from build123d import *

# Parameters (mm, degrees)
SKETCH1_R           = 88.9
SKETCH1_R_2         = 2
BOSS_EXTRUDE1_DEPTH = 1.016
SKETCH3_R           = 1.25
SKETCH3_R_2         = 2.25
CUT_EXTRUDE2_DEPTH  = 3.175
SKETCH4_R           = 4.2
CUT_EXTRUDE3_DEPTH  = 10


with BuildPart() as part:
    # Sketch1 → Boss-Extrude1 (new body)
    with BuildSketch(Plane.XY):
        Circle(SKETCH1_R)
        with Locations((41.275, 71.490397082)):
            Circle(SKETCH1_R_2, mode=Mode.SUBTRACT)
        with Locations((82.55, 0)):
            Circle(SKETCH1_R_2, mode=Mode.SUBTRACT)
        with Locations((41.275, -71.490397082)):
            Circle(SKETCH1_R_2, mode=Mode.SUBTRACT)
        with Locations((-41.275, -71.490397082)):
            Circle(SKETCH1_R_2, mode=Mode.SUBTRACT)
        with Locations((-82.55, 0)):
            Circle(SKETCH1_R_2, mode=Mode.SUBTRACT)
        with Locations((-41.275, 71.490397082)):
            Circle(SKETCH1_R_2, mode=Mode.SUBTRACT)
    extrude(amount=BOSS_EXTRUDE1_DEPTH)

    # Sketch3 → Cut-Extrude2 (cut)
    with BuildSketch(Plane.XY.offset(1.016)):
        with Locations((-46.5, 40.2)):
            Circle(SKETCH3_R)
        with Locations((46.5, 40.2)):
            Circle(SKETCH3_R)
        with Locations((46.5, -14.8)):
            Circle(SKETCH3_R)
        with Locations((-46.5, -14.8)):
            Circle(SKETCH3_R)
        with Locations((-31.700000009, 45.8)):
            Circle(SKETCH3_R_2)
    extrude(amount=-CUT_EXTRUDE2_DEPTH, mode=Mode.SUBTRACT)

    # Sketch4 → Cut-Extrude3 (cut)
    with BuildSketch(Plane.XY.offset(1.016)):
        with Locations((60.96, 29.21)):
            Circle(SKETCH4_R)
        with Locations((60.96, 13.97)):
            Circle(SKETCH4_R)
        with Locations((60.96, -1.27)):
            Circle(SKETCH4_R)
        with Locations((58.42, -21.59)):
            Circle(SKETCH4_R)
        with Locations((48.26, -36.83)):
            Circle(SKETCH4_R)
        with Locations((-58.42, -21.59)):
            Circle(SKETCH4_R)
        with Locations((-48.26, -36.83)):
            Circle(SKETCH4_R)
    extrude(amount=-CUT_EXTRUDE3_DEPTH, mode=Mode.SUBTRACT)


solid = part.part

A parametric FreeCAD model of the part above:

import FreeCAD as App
import Part
import Sketcher
Q = App.Units.Quantity

doc = App.newDocument("Part")
body = doc.addObject("PartDesign::Body", "Body")

# Sketch on XY plane
sketch1 = body.newObject("Sketcher::SketchObject", "Sketch")
sketch1.AttachmentSupport = (doc.getObject("XY_Plane"), [""])
sketch1.MapMode = "FlatFace"
sketch1.addGeometry([
    Part.Circle(App.Vector(0, 0, 0), App.Vector(0, 0, 1), 88.9),  # 0
    Part.Circle(App.Vector(-41.275, -71.490397, 0), App.Vector(0, 0, 1), 2),  # 1
    Part.Circle(App.Vector(41.275, -71.490397, 0), App.Vector(0, 0, 1), 2),  # 2
    Part.Circle(App.Vector(-82.55, 0, 0), App.Vector(0, 0, 1), 2),  # 3
    Part.Circle(App.Vector(-41.275, 71.490397, 0), App.Vector(0, 0, 1), 2),  # 4
    Part.Circle(App.Vector(82.55, 0, 0), App.Vector(0, 0, 1), 2),  # 5
    Part.Circle(App.Vector(41.275, 71.490397, 0), App.Vector(0, 0, 1), 2),  # 6
], False)
sketch1.addConstraint([
    Sketcher.Constraint("Coincident", 0, 3, -1, 1),
    Sketcher.Constraint("Equal", 1, 2),
    Sketcher.Constraint("Equal", 2, 3),
    Sketcher.Constraint("Equal", 3, 4),
    Sketcher.Constraint("Equal", 4, 5),
    Sketcher.Constraint("Equal", 5, 6),
    Sketcher.Constraint("Symmetric", 2, 3, 4, 3, -1, 1),
    Sketcher.Constraint("Symmetric", 3, 3, 5, 3, -1, 1),
    Sketcher.Constraint("Symmetric", 1, 3, 6, 3, -1, 1),
    Sketcher.Constraint("Symmetric", 1, 3, 2, 3, -2),
    Sketcher.Constraint("PointOnObject", 3, 3, -1),
    Sketcher.Constraint("Diameter", 1, Q("4 mm")),
    Sketcher.Constraint("Diameter", 0, Q("177.8 mm")),
    Sketcher.Constraint("DistanceX", 3, 3, 5, 3, Q("165.1 mm")),
    Sketcher.Constraint("DistanceX", 1, 3, 2, 3, Q("82.55 mm")),
    Sketcher.Constraint("DistanceY", 1, 3, -1, 1, Q("71.490397 mm")),
])
pad1 = body.newObject("PartDesign::Pad", "Pad")
pad1.Profile = sketch1
pad1.Length = 1.016

# Sketch on XY plane
sketch2 = body.newObject("Sketcher::SketchObject", "Sketch001")
sketch2.AttachmentSupport = (doc.getObject("XY_Plane"), [""])
sketch2.MapMode = "FlatFace"
sketch2.AttachmentOffset = App.Placement(App.Vector(0, 0, 1.016), App.Rotation())
sketch2.addGeometry([
    Part.Circle(App.Vector(-46.5, 40.2, 0), App.Vector(0, 0, 1), 1.25),  # 0
    Part.Circle(App.Vector(46.5, 40.2, 0), App.Vector(0, 0, 1), 1.25),  # 1
    Part.Circle(App.Vector(46.5, -14.8, 0), App.Vector(0, 0, 1), 1.25),  # 2
    Part.Circle(App.Vector(-46.5, -14.8, 0), App.Vector(0, 0, 1), 1.25),  # 3
    Part.Circle(App.Vector(-31.7, 45.8, 0), App.Vector(0, 0, 1), 2.25),  # 4
], False)
sketch2.addConstraint([
    Sketcher.Constraint("Equal", 0, 1),
    Sketcher.Constraint("Equal", 1, 2),
    Sketcher.Constraint("Equal", 2, 3),
    Sketcher.Constraint("Symmetric", 0, 3, 1, 3, -2),
    Sketcher.Constraint("Symmetric", 2, 3, 3, 3, -2),
    Sketcher.Constraint("Vertical", 1, 3, 2, 3),
    Sketcher.Constraint("Diameter", 0, Q("2.5 mm")),
    Sketcher.Constraint("Diameter", 4, Q("4.5 mm")),
    Sketcher.Constraint("DistanceX", 0, 3, 1, 3, Q("93 mm")),
    Sketcher.Constraint("DistanceY", 2, 3, 1, 3, Q("55 mm")),
    Sketcher.Constraint("DistanceY", -1, 1, 0, 3, Q("40.2 mm")),
    Sketcher.Constraint("DistanceX", 4, 3, -1, 1, Q("31.7 mm")),
    Sketcher.Constraint("DistanceY", -1, 1, 4, 3, Q("45.8 mm")),
])
pocket1 = body.newObject("PartDesign::Pocket", "Pocket")
pocket1.Profile = sketch2
pocket1.Length = 3.175

# Sketch on XY plane
sketch3 = body.newObject("Sketcher::SketchObject", "Sketch002")
sketch3.AttachmentSupport = (doc.getObject("XY_Plane"), [""])
sketch3.MapMode = "FlatFace"
sketch3.AttachmentOffset = App.Placement(App.Vector(0, 0, 1.016), App.Rotation())
sketch3.addGeometry([
    Part.Circle(App.Vector(60.96, 29.21, 0), App.Vector(0, 0, 1), 4.2),  # 0
    Part.Circle(App.Vector(60.96, 13.97, 0), App.Vector(0, 0, 1), 4.2),  # 1
    Part.Circle(App.Vector(60.96, -1.27, 0), App.Vector(0, 0, 1), 4.2),  # 2
    Part.Circle(App.Vector(58.42, -21.59, 0), App.Vector(0, 0, 1), 4.2),  # 3
    Part.Circle(App.Vector(48.26, -36.83, 0), App.Vector(0, 0, 1), 4.2),  # 4
    Part.Circle(App.Vector(-58.42, -21.59, 0), App.Vector(0, 0, 1), 4.2),  # 5
    Part.Circle(App.Vector(-48.26, -36.83, 0), App.Vector(0, 0, 1), 4.2),  # 6
], False)
sketch3.addConstraint([
    Sketcher.Constraint("Equal", 0, 1),
    Sketcher.Constraint("Equal", 1, 2),
    Sketcher.Constraint("Equal", 2, 3),
    Sketcher.Constraint("Equal", 3, 4),
    Sketcher.Constraint("Equal", 4, 5),
    Sketcher.Constraint("Equal", 5, 6),
    Sketcher.Constraint("Symmetric", 3, 3, 5, 3, -2),
    Sketcher.Constraint("Symmetric", 4, 3, 6, 3, -2),
    Sketcher.Constraint("Vertical", 0, 3, 1, 3),
    Sketcher.Constraint("Vertical", 1, 3, 2, 3),
    Sketcher.Constraint("Diameter", 0, Q("8.4 mm")),
    Sketcher.Constraint("DistanceY", 3, 3, 0, 3, Q("50.8 mm")),
    Sketcher.Constraint("DistanceX", 4, 3, 2, 3, Q("12.7 mm")),
    Sketcher.Constraint("DistanceY", 4, 3, 1, 3, Q("50.8 mm")),
    Sketcher.Constraint("DistanceX", -1, 1, 0, 3, Q("60.96 mm")),
    Sketcher.Constraint("DistanceY", -1, 1, 0, 3, Q("29.21 mm")),
    Sketcher.Constraint("DistanceY", -1, 1, 1, 3, Q("13.97 mm")),
    Sketcher.Constraint("DistanceY", 2, 3, -1, 1, Q("1.27 mm")),
    Sketcher.Constraint("DistanceX", -1, 1, 3, 3, Q("58.42 mm")),
])
pocket2 = body.newObject("PartDesign::Pocket", "Pocket001")
pocket2.Profile = sketch3
pocket2.Length = 10

doc.recompute()
